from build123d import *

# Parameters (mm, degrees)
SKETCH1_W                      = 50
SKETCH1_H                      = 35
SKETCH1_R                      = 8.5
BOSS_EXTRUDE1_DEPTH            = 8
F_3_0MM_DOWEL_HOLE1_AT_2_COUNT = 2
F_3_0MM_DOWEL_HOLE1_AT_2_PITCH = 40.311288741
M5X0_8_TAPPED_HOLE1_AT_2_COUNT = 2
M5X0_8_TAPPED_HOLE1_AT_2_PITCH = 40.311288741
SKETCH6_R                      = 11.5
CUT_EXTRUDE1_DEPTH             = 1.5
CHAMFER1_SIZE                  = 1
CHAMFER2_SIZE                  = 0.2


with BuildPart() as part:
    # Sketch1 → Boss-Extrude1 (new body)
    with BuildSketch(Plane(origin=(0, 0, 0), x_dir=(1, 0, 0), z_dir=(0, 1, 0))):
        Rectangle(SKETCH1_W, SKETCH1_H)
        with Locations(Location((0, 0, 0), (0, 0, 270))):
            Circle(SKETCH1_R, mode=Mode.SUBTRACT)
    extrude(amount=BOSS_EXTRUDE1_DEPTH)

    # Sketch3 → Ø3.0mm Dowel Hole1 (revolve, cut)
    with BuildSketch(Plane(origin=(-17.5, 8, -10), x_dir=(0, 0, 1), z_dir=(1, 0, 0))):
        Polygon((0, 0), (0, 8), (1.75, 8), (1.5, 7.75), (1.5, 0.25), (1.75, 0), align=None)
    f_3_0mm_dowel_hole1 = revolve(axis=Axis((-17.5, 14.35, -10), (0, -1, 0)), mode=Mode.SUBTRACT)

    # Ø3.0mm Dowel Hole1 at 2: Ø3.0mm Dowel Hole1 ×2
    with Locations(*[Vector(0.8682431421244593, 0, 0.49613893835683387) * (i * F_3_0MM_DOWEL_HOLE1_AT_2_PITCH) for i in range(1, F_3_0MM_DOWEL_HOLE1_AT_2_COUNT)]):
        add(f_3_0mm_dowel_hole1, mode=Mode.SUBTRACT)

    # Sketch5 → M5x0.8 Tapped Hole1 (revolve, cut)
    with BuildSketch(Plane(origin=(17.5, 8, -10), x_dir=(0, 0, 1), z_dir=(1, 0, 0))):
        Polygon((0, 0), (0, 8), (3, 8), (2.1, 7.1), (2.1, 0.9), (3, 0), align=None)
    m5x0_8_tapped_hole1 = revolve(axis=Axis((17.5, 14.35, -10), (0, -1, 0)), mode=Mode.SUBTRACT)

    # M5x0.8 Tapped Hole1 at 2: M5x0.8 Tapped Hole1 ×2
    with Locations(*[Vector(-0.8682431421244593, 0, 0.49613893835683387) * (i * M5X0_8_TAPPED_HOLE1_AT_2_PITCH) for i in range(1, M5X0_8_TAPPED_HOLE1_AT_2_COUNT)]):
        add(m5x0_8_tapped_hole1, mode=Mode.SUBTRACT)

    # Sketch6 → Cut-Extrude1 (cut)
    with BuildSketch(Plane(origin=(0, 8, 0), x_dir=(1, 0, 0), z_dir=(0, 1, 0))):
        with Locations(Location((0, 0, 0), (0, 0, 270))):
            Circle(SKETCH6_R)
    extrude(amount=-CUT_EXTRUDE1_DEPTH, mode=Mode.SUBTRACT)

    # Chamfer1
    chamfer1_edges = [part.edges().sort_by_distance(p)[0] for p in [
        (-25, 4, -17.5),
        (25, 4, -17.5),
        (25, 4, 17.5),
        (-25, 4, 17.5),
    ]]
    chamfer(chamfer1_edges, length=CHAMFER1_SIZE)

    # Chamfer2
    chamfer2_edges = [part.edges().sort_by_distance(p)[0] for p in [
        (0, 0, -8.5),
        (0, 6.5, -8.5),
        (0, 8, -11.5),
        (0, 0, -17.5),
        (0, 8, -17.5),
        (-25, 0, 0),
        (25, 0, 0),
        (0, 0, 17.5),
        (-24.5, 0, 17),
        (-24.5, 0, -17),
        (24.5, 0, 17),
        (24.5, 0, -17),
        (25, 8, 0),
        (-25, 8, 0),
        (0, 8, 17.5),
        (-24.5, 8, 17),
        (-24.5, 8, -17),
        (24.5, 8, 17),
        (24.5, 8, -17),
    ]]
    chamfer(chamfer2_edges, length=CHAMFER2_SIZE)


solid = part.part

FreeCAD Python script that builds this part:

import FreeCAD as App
import Part
import Sketcher
Q = App.Units.Quantity


def edges_at(feature, points):
    """Names of the edges that pass closest to the given points."""
    edges = feature.Shape.Edges
    near = lambda p: min(range(len(edges)), key=lambda i: edges[i].distToShape(Part.Vertex(*p))[0])
    return sorted({f"Edge{near(p) + 1}" for p in points})


def add_polygon(sketch, points):
    """Adds a closed chain of lines whose ends are joined by coincident constraints."""
    first, n = sketch.GeometryCount, len(points)
    for a, b in zip(points, points[1:] + points[:1]):
        sketch.addGeometry(Part.LineSegment(App.Vector(*a, 0), App.Vector(*b, 0)), False)
    for i in range(n):
        sketch.addConstraint(Sketcher.Constraint("Coincident", first + i, 2, first + (i + 1) % n, 1))

doc = App.newDocument("Part")
body = doc.addObject("PartDesign::Body", "Body")

sketch1 = body.newObject("Sketcher::SketchObject", "Sketch")
sketch1.AttachmentSupport = (doc.getObject("XZ_Plane"), [""])
sketch1.MapMode = "FlatFace"
add_polygon(sketch1, [(-25, -17.5), (-25, 17.5), (25, 17.5), (25, -17.5)])
sketch1.addGeometry(Part.Circle(App.Vector(0, 0, 0), App.Vector(0, 0, 1), 8.5), False)
sketch1.addConstraint(Sketcher.Constraint("Vertical", 0))
sketch1.addConstraint(Sketcher.Constraint("Horizontal", 1))
sketch1.addConstraint(Sketcher.Constraint("Vertical", 2))
sketch1.addConstraint(Sketcher.Constraint("Horizontal", 3))
sketch1.addConstraint(Sketcher.Constraint("Coincident", 4, 3, -1, 1))
sketch1.addConstraint(Sketcher.Constraint("Symmetric", 0, 2, 2, 2, -1, 1))
sketch1.addConstraint(Sketcher.Constraint("Diameter", 4, Q("17 mm")))
sketch1.addConstraint(Sketcher.Constraint("DistanceX", 1, 1, 1, 2, Q("50 mm")))
sketch1.addConstraint(Sketcher.Constraint("DistanceY", 0, 1, 0, 2, Q("35 mm")))
pad1 = body.newObject("PartDesign::Pad", "Pad")
pad1.Profile = sketch1
pad1.Length = 8
pad1.Reversed = True

sketch2 = body.newObject("Sketcher::SketchObject", "Sketch001")
sketch2.AttachmentSupport = (doc.getObject("YZ_Plane"), [""])
sketch2.MapMode = "FlatFace"
sketch2.AttachmentOffset = App.Placement(App.Vector(0, 0, -17.5), App.Rotation())
add_polygon(sketch2, [(0, -10), (8, -10), (8, -8.25), (7.75, -8.5), (0.25, -8.5), (0, -8.25)])
sketch2.addGeometry(Part.LineSegment(App.Vector(8, -10, 0), App.Vector(0, -10, 0)), True)
sketch2.addConstraint(Sketcher.Constraint("Horizontal", 0))
sketch2.addConstraint(Sketcher.Constraint("Vertical", 1))
sketch2.addConstraint(Sketcher.Constraint("Horizontal", 3))
sketch2.addConstraint(Sketcher.Constraint("Vertical", 5))
sketch2.addConstraint(Sketcher.Constraint("Horizontal", 6))
sketch2.addConstraint(Sketcher.Constraint("Coincident", 6, 1, 0, 2))
sketch2.addConstraint(Sketcher.Constraint("PointOnObject", 4, 2, -2))
sketch2.addConstraint(Sketcher.Constraint("PointOnObject", 6, 2, -2))
sketch2.addConstraint(Sketcher.Constraint("Perpendicular", 2, 4))
sketch2.addConstraint(Sketcher.Constraint("Horizontal", 1, 2, 4, 2))
sketch2.addConstraint(Sketcher.Constraint("Equal", 2, 4))
sketch2.addConstraint(Sketcher.Constraint("DistanceX", 0, 1, 0, 2, Q("8 mm")))
sketch2.addConstraint(Sketcher.Constraint("DistanceX", 3, 2, 3, 1, Q("7.5 mm")))
sketch2.addConstraint(Sketcher.Constraint("DistanceY", 0, 2, -1, 1, Q("10 mm")))
sketch2.addConstraint(Sketcher.Constraint("DistanceY", 1, 1, 1, 2, Q("1.75 mm")))
groove = body.newObject("PartDesign::Groove", "Groove")
groove.Profile = sketch2
groove.ReferenceAxis = (sketch2, ["Axis0"])
groove.Angle = 360
doc.recompute()

datumline = body.newObject("PartDesign::Line", "DatumLine")
datumline.Placement = App.Placement(App.Vector(0, 0, 0), App.Rotation(App.Vector(0, 0, 1), App.Vector(0.868243142, 0, 0.496138938)))
linearpattern = body.newObject("PartDesign::LinearPattern", "LinearPattern")
linearpattern.Originals = [groove]
linearpattern.Direction = (datumline, [""])
linearpattern.Mode = "offset"
linearpattern.Offset = 40.311289
linearpattern.Occurrences = 2
body.Tip = linearpattern

sketch3 = body.newObject("Sketcher::SketchObject", "Sketch002")
sketch3.AttachmentSupport = (doc.getObject("YZ_Plane"), [""])
sketch3.MapMode = "FlatFace"
sketch3.AttachmentOffset = App.Placement(App.Vector(0, 0, 17.5), App.Rotation())
add_polygon(sketch3, [(0, -10), (8, -10), (8, -7), (7.1, -7.9), (0.9, -7.9), (0, -7)])
sketch3.addGeometry(Part.LineSegment(App.Vector(8, -10, 0), App.Vector(0, -10, 0)), True)
sketch3.addConstraint(Sketcher.Constraint("Horizontal", 0))
sketch3.addConstraint(Sketcher.Constraint("Vertical", 1))
sketch3.addConstraint(Sketcher.Constraint("Horizontal", 3))
sketch3.addConstraint(Sketcher.Constraint("Vertical", 5))
sketch3.addConstraint(Sketcher.Constraint("Horizontal", 6))
sketch3.addConstraint(Sketcher.Constraint("Coincident", 6, 1, 0, 2))
sketch3.addConstraint(Sketcher.Constraint("PointOnObject", 4, 2, -2))
sketch3.addConstraint(Sketcher.Constraint("PointOnObject", 6, 2, -2))
sketch3.addConstraint(Sketcher.Constraint("Perpendicular", 2, 4))
sketch3.addConstraint(Sketcher.Constraint("Horizontal", 1, 2, 4, 2))
sketch3.addConstraint(Sketcher.Constraint("Equal", 2, 4))
sketch3.addConstraint(Sketcher.Constraint("DistanceX", 0, 1, 0, 2, Q("8 mm")))
sketch3.addConstraint(Sketcher.Constraint("DistanceY", 1, 1, 1, 2, Q("3 mm")))
sketch3.addConstraint(Sketcher.Constraint("DistanceX", 3, 2, 3, 1, Q("6.2 mm")))
sketch3.addConstraint(Sketcher.Constraint("DistanceY", 0, 2, -1, 1, Q("10 mm")))
groove2 = body.newObject("PartDesign::Groove", "Groove001")
groove2.Profile = sketch3
groove2.ReferenceAxis = (sketch3, ["Axis0"])
groove2.Angle = 360
doc.recompute()

datumline2 = body.newObject("PartDesign::Line", "DatumLine001")
datumline2.Placement = App.Placement(App.Vector(0, 0, 0), App.Rotation(App.Vector(0, 0, 1), App.Vector(-0.868243142, 0, 0.496138938)))
linearpattern2 = body.newObject("PartDesign::LinearPattern", "LinearPattern001")
linearpattern2.Originals = [groove2]
linearpattern2.Direction = (datumline2, [""])
linearpattern2.Mode = "offset"
linearpattern2.Offset = 40.311289
linearpattern2.Occurrences = 2
body.Tip = linearpattern2

sketch4 = body.newObject("Sketcher::SketchObject", "Sketch003")
sketch4.AttachmentSupport = (doc.getObject("XZ_Plane"), [""])
sketch4.MapMode = "FlatFace"
sketch4.AttachmentOffset = App.Placement(App.Vector(0, 0, -8), App.Rotation())
sketch4.addGeometry(Part.Circle(App.Vector(0, 0, 0), App.Vector(0, 0, 1), 11.5), False)
sketch4.addConstraint(Sketcher.Constraint("Coincident", 0, 3, -1, 1))
sketch4.addConstraint(Sketcher.Constraint("Diameter", 0, Q("23 mm")))
pocket1 = body.newObject("PartDesign::Pocket", "Pocket")
pocket1.Profile = sketch4
pocket1.Length = 1.5
pocket1.Reversed = True
doc.recompute()

chamfer = body.newObject("PartDesign::Chamfer", "Chamfer")
chamfer.Base = (pocket1, edges_at(pocket1, [
    (-25, 4, -17.5),
    (25, 4, -17.5),
    (25, 4, 17.5),
    (-25, 4, 17.5),
]))
chamfer.Size = 1
doc.recompute()

chamfer2 = body.newObject("PartDesign::Chamfer", "Chamfer001")
chamfer2.Base = (chamfer, edges_at(chamfer, [
    (0, 0, -8.5),
    (0, 6.5, -8.5),
    (0, 8, -11.5),
    (0, 0, -17.5),
    (0, 8, -17.5),
    (-25, 0, 0),
    (25, 0, 0),
    (0, 0, 17.5),
    (-24.5, 0, 17),
    (-24.5, 0, -17),
    (24.5, 0, 17),
    (24.5, 0, -17),
    (25, 8, 0),
    (-25, 8, 0),
    (0, 8, 17.5),
    (-24.5, 8, 17),
    (-24.5, 8, -17),
    (24.5, 8, 17),
    (24.5, 8, -17),
]))
chamfer2.Size = 0.2

doc.recompute()
